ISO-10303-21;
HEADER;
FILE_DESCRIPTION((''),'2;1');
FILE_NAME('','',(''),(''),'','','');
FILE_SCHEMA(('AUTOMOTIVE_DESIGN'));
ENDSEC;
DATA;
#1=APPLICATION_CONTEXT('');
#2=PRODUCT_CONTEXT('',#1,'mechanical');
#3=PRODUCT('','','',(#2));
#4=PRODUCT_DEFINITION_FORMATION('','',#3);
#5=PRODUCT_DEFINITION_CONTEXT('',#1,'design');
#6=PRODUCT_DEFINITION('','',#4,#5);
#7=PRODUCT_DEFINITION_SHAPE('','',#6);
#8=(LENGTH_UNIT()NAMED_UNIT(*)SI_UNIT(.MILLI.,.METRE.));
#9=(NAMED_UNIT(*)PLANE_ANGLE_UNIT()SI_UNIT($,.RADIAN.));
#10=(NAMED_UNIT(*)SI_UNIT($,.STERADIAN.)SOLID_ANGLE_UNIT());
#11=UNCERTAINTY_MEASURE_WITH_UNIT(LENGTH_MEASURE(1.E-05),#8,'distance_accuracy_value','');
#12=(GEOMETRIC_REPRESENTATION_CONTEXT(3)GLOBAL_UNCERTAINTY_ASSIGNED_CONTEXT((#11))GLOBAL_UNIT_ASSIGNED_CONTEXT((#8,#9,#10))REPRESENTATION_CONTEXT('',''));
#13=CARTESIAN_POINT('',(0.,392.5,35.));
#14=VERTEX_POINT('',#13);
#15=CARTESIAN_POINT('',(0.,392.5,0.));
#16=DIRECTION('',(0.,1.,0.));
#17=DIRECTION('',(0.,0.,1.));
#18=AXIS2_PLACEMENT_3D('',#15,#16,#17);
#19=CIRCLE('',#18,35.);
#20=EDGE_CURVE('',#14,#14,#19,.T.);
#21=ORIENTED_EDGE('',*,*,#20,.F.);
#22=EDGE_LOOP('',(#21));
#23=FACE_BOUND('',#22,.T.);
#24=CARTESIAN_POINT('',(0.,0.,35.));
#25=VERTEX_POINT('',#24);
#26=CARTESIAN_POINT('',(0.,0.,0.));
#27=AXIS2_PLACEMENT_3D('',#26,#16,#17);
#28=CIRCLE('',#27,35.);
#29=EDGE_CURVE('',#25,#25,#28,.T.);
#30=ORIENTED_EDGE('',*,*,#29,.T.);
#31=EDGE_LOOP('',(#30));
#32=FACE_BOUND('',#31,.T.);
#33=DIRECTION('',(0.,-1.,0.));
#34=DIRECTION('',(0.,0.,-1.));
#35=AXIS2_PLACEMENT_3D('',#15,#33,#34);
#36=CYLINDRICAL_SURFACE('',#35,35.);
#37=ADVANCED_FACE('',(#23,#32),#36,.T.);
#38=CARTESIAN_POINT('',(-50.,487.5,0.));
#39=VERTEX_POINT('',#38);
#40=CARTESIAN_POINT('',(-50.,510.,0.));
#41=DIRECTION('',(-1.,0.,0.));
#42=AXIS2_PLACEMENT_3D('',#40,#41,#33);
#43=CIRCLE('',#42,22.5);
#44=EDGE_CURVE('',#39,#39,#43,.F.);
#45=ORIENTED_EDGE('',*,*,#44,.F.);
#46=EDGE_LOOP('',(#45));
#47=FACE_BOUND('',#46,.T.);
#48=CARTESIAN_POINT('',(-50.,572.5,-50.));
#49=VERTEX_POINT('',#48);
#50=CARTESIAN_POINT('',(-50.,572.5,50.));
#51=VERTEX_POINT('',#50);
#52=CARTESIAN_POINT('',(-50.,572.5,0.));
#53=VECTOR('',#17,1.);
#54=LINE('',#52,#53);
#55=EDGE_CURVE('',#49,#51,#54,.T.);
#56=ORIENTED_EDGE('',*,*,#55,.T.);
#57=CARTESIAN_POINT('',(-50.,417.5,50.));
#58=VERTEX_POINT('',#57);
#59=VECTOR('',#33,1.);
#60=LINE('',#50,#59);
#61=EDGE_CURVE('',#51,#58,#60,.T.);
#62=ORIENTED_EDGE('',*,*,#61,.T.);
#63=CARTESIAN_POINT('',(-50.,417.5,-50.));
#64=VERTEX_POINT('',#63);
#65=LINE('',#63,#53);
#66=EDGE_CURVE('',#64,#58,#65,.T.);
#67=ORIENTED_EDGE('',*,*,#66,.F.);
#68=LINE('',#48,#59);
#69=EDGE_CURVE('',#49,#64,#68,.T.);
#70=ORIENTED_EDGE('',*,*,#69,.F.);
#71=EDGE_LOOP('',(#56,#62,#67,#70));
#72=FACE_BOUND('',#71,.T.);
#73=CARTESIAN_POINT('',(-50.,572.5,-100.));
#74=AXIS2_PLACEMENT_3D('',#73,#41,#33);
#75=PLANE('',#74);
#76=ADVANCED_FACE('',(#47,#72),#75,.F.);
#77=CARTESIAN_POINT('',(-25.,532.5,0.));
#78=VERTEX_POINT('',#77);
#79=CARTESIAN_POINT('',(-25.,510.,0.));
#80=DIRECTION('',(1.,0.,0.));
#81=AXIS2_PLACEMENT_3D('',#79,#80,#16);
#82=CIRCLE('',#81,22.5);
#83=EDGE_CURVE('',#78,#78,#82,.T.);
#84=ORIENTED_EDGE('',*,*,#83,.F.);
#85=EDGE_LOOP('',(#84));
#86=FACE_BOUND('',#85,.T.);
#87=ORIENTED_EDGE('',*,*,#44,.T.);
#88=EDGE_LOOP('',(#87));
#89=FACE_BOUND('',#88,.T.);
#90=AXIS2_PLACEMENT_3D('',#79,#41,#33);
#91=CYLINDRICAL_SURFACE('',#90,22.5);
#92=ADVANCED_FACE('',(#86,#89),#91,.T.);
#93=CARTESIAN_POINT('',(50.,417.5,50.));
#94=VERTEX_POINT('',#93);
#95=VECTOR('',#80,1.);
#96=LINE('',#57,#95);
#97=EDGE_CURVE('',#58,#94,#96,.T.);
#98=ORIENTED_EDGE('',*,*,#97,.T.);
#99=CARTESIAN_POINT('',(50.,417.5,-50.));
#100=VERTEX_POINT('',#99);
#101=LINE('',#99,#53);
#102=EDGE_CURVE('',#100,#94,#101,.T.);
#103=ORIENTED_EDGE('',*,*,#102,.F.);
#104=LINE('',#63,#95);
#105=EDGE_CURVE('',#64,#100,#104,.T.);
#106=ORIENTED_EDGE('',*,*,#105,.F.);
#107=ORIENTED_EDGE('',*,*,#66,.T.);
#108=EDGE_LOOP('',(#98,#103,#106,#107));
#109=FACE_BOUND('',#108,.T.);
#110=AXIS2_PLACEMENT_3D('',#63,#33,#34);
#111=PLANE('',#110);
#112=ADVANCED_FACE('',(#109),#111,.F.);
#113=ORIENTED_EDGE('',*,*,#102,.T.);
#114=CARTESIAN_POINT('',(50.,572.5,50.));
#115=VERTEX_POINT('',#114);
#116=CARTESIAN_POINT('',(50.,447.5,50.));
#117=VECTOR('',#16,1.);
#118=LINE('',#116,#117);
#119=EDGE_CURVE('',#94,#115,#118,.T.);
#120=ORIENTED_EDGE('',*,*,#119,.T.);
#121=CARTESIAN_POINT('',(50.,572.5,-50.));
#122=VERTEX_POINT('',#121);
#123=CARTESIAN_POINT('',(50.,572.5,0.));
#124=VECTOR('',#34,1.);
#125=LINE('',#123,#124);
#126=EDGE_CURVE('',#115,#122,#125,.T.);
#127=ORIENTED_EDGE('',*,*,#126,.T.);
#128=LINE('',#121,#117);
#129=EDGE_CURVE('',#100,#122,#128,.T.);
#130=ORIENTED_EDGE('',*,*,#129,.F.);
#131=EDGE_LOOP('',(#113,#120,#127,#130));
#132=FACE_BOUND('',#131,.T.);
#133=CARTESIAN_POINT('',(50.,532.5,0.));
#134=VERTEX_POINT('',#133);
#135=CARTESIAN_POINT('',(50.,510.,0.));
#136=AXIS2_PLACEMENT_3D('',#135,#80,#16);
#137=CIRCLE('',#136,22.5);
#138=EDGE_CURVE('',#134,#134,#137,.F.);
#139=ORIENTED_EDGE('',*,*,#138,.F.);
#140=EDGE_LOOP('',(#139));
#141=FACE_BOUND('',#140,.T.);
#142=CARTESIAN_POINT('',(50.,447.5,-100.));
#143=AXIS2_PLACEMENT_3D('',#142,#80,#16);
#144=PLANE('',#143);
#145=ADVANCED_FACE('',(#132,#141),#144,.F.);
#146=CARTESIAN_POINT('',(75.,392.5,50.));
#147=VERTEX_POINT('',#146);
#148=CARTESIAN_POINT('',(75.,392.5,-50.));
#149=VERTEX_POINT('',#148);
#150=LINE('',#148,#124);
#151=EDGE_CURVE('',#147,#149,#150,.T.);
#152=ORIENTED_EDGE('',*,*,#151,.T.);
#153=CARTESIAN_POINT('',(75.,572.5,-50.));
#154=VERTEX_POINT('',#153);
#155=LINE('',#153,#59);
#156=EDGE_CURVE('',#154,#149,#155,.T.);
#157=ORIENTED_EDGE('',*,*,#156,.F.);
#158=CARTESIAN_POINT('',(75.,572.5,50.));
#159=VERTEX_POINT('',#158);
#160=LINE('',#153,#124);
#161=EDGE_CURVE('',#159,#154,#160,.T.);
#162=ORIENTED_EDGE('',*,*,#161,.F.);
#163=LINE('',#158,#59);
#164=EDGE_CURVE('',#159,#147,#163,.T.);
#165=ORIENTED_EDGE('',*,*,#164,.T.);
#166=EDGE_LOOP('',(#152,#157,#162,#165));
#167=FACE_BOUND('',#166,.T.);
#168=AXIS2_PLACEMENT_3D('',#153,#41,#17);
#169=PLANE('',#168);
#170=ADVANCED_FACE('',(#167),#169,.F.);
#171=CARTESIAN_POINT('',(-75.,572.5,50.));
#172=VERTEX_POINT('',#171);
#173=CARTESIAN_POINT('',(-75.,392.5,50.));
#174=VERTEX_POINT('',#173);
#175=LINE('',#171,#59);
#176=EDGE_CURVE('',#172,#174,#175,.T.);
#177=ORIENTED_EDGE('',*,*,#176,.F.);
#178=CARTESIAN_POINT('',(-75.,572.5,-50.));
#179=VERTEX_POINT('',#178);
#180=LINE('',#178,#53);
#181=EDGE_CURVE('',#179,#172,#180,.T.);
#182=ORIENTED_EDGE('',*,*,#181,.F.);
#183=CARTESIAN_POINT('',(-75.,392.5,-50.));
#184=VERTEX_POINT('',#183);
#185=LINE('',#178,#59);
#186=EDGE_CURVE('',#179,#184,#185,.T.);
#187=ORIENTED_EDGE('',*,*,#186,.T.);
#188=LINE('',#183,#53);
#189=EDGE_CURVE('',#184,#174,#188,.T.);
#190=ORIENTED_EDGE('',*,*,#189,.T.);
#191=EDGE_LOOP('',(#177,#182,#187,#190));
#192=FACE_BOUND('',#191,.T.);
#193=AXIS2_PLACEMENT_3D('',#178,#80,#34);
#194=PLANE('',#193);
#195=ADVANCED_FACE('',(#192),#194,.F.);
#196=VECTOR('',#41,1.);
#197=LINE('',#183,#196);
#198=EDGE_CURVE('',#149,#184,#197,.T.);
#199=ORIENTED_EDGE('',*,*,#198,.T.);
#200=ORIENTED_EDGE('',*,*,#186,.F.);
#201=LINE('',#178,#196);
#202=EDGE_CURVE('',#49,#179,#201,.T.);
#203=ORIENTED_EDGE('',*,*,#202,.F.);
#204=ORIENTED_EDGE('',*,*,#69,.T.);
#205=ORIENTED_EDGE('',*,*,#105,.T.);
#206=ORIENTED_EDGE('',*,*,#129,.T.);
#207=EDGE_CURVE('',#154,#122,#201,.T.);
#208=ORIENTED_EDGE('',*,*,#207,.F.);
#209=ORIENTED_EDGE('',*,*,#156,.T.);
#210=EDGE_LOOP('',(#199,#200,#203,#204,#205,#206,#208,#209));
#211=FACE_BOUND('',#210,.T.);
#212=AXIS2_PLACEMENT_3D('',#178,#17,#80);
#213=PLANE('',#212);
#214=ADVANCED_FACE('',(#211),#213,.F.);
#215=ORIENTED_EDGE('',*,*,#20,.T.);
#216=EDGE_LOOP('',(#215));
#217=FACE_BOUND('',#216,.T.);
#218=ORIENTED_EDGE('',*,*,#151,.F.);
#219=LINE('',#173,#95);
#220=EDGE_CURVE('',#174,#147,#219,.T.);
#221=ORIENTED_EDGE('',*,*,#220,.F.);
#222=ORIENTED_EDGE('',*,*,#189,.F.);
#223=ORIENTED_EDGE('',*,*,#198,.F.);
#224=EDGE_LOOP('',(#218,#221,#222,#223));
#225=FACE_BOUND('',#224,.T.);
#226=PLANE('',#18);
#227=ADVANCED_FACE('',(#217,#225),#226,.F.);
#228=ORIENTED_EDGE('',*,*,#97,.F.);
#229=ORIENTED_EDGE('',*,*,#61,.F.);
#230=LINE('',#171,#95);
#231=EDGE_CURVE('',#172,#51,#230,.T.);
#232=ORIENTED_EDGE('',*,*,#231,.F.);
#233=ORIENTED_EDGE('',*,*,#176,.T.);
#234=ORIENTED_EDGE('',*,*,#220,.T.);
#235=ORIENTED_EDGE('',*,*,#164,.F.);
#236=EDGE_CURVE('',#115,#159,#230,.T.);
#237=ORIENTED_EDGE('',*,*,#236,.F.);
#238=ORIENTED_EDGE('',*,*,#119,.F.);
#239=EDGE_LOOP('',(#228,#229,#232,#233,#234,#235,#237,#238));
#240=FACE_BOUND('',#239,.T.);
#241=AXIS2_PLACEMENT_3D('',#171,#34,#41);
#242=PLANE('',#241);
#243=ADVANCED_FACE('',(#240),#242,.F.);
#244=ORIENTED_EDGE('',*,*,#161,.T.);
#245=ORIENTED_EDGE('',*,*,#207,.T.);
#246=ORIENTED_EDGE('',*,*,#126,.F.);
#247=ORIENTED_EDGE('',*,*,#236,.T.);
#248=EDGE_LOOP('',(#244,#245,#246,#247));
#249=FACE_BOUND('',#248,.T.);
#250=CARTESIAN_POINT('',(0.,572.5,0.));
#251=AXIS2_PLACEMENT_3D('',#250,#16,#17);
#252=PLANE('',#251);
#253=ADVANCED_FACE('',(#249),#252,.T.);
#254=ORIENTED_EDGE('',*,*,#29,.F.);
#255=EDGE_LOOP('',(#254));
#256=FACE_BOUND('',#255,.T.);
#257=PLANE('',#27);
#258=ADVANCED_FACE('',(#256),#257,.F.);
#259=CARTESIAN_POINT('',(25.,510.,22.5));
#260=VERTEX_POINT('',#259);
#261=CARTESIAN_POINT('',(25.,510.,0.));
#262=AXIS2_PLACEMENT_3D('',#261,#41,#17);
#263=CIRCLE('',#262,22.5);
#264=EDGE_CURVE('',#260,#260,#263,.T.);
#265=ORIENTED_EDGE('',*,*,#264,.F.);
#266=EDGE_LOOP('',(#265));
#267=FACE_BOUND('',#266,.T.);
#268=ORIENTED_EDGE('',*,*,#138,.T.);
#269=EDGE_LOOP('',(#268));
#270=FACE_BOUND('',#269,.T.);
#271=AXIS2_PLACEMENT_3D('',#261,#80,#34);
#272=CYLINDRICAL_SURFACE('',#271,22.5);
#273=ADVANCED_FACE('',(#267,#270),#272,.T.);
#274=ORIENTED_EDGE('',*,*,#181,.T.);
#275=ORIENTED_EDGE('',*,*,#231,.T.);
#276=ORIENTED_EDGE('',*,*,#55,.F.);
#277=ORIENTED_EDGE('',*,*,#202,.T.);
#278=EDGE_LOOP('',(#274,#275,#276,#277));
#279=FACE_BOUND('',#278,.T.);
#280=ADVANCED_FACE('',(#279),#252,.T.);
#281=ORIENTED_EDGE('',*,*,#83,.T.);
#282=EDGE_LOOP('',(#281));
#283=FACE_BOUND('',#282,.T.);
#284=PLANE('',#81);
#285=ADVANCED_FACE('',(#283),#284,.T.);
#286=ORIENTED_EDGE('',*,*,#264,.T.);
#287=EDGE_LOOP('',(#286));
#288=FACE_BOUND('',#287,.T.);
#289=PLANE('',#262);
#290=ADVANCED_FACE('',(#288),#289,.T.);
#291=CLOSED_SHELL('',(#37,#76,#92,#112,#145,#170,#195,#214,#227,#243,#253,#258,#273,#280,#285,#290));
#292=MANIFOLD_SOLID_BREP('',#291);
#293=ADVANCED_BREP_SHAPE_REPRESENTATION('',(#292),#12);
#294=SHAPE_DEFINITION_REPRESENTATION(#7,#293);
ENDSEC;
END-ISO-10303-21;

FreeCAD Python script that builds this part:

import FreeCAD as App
import Part
import Sketcher

V = App.Vector


def add_polygon(sketch, points):
    """Adds a closed chain of lines whose ends are joined by coincident constraints."""
    first, n = sketch.GeometryCount, len(points)
    for a, b in zip(points, points[1:] + points[:1]):
        sketch.addGeometry(Part.LineSegment(App.Vector(*a, 0), App.Vector(*b, 0)), False)
    for i in range(n):
        sketch.addConstraint(Sketcher.Constraint("Coincident", first + i, 2, first + (i + 1) % n, 1))

doc = App.newDocument("Part")
params = doc.addObject("Spreadsheet::Sheet", "Params")
for row, (alias, value) in enumerate([
    ("sketch1_diameter", "70 mm"),
    ("pad1_length", "392.5 mm"),
    ("sketch2_width", "150 mm"),
    ("sketch2_height", "100 mm"),
    ("pad2_length", "180 mm"),
    ("sketch3_width", "100 mm"),
    ("sketch3_height", "125 mm"),
    ("pocket1_length", "150 mm"),
    ("sketch4_diameter", "45 mm"),
    ("pad3_length", "25 mm"),
    ("sketch5_diameter", "45 mm"),
    ("pad4_length", "25 mm"),
    ("sketch6_width", "100 mm"),
    ("sketch6_height", "30 mm"),
], start=1):
    params.set(f"A{row}", alias)
    params.set(f"B{row}", "=" + value)
    params.setAlias(f"B{row}", alias)

body = doc.addObject("PartDesign::Body", "Body")

sketch1 = doc.addObject("Sketcher::SketchObject", "Sketch")
body.addObject(sketch1)
sketch1.AttachmentSupport = (doc.XZ_Plane, [""])
sketch1.MapMode = "FlatFace"
sketch1.addGeometry(Part.Circle(V(0, 0, 0), V(0, 0, 1), 35), False)
sketch1.addConstraint(Sketcher.Constraint("Coincident", 0, 3, -1, 1))
sketch1.addConstraint(Sketcher.Constraint("Diameter", 0, 70.0))
sketch1.setExpression("Constraints[1]", "Params.sketch1_diameter")
pad1 = doc.addObject("PartDesign::Pad", "Pad")
body.addObject(pad1)
pad1.Profile = sketch1
pad1.setExpression("Length", "Params.pad1_length")
pad1.Reversed = True

sketch2 = doc.addObject("Sketcher::SketchObject", "Sketch001")
body.addObject(sketch2)
sketch2.AttachmentSupport = (doc.XZ_Plane, [""])
sketch2.MapMode = "FlatFace"
sketch2.AttachmentOffset = App.Placement(V(0, 0, -392.5), App.Rotation())
add_polygon(sketch2, [(-75, -50), (-75, 50), (75, 50), (75, -50)])
sketch2.addConstraint(Sketcher.Constraint("Vertical", 0))
sketch2.addConstraint(Sketcher.Constraint("Horizontal", 1))
sketch2.addConstraint(Sketcher.Constraint("Vertical", 2))
sketch2.addConstraint(Sketcher.Constraint("Horizontal", 3))
sketch2.addConstraint(Sketcher.Constraint("Symmetric", 0, 2, 2, 2, -1, 1))
sketch2.addConstraint(Sketcher.Constraint("DistanceX", 1, 1, 1, 2, 150.0))
sketch2.addConstraint(Sketcher.Constraint("DistanceY", 0, 1, 0, 2, 100.0))
sketch2.setExpression("Constraints[9]", "Params.sketch2_width")
sketch2.setExpression("Constraints[10]", "Params.sketch2_height")
pad2 = doc.addObject("PartDesign::Pad", "Pad001")
body.addObject(pad2)
pad2.Profile = sketch2
pad2.setExpression("Length", "Params.pad2_length")
pad2.Reversed = True

sketch3 = doc.addObject("Sketcher::SketchObject", "Sketch002")
body.addObject(sketch3)
sketch3.AttachmentSupport = (doc.XY_Plane, [""])
sketch3.MapMode = "FlatFace"
sketch3.AttachmentOffset = App.Placement(V(0, 0, 50), App.Rotation())
add_polygon(sketch3, [(-50, 572), (-50, 448), (50, 448), (50, 572)])
sketch3.addConstraint(Sketcher.Constraint("Vertical", 0))
sketch3.addConstraint(Sketcher.Constraint("Horizontal", 1))
sketch3.addConstraint(Sketcher.Constraint("Vertical", 2))
sketch3.addConstraint(Sketcher.Constraint("Horizontal", 3))
sketch3.addConstraint(Sketcher.Constraint("DistanceX", 1, 1, 1, 2, 100.0))
sketch3.addConstraint(Sketcher.Constraint("DistanceY", 0, 2, 0, 1, 125.0))
sketch3.addConstraint(Sketcher.Constraint("DistanceX", 0, 2, -1, 1, 50.0))
sketch3.addConstraint(Sketcher.Constraint("DistanceY", -1, 1, 0, 2, 447.5))
sketch3.setExpression("Constraints[8]", "Params.sketch3_width")
sketch3.setExpression("Constraints[9]", "Params.sketch3_height")
pocket1 = doc.addObject("PartDesign::Pocket", "Pocket")
body.addObject(pocket1)
pocket1.Profile = sketch3
pocket1.setExpression("Length", "Params.pocket1_length")

sketch4 = doc.addObject("Sketcher::SketchObject", "Sketch003")
body.addObject(sketch4)
sketch4.AttachmentSupport = (doc.YZ_Plane, [""])
sketch4.MapMode = "FlatFace"
sketch4.AttachmentOffset = App.Placement(V(0, 0, 50), App.Rotation())
sketch4.addGeometry(Part.Circle(V(510, 0, 0), V(0, 0, 1), 22), False)
sketch4.addConstraint(Sketcher.Constraint("PointOnObject", 0, 3, -1))
sketch4.addConstraint(Sketcher.Constraint("Diameter", 0, 45.0))
sketch4.addConstraint(Sketcher.Constraint("DistanceX", -1, 1, 0, 3, 510.0))
sketch4.setExpression("Constraints[1]", "Params.sketch4_diameter")
pad3 = doc.addObject("PartDesign::Pad", "Pad002")
body.addObject(pad3)
pad3.Profile = sketch4
pad3.setExpression("Length", "Params.pad3_length")
pad3.Reversed = True

sketch5 = doc.addObject("Sketcher::SketchObject", "Sketch004")
body.addObject(sketch5)
sketch5.AttachmentSupport = (doc.YZ_Plane, [""])
sketch5.MapMode = "FlatFace"
sketch5.AttachmentOffset = App.Placement(V(0, 0, -25), App.Rotation())
sketch5.addGeometry(Part.Circle(V(510, 0, 0), V(0, 0, 1), 22), False)
sketch5.addConstraint(Sketcher.Constraint("PointOnObject", 0, 3, -1))
sketch5.addConstraint(Sketcher.Constraint("Diameter", 0, 45.0))
sketch5.addConstraint(Sketcher.Constraint("DistanceX", -1, 1, 0, 3, 510.0))
sketch5.setExpression("Constraints[1]", "Params.sketch5_diameter")
pad4 = doc.addObject("PartDesign::Pad", "Pad003")
body.addObject(pad4)
pad4.Profile = sketch5
pad4.setExpression("Length", "Params.pad4_length")
pad4.Reversed = True

sketch6 = doc.addObject("Sketcher::SketchObject", "Sketch005")
body.addObject(sketch6)
sketch6.AttachmentSupport = (doc.XY_Plane, [""])
sketch6.MapMode = "FlatFace"
sketch6.AttachmentOffset = App.Placement(V(0, 0, 50), App.Rotation())
add_polygon(sketch6, [(-50, 448), (-50, 418), (50, 418), (50, 448)])
sketch6.addConstraint(Sketcher.Constraint("Vertical", 0))
sketch6.addConstraint(Sketcher.Constraint("Horizontal", 1))
sketch6.addConstraint(Sketcher.Constraint("Vertical", 2))
sketch6.addConstraint(Sketcher.Constraint("Horizontal", 3))
sketch6.addConstraint(Sketcher.Constraint("DistanceX", 1, 1, 1, 2, 100.0))
sketch6.addConstraint(Sketcher.Constraint("DistanceY", 0, 2, 0, 1, 30.0))
sketch6.addConstraint(Sketcher.Constraint("DistanceX", 0, 2, -1, 1, 50.0))
sketch6.addConstraint(Sketcher.Constraint("DistanceY", -1, 1, 0, 2, 417.5))
sketch6.setExpression("Constraints[8]", "Params.sketch6_width")
sketch6.setExpression("Constraints[9]", "Params.sketch6_height")
pocket2 = doc.addObject("PartDesign::Pocket", "Pocket001")
body.addObject(pocket2)
pocket2.Profile = sketch6
pocket2.Type = "ThroughAll"

doc.recompute()
